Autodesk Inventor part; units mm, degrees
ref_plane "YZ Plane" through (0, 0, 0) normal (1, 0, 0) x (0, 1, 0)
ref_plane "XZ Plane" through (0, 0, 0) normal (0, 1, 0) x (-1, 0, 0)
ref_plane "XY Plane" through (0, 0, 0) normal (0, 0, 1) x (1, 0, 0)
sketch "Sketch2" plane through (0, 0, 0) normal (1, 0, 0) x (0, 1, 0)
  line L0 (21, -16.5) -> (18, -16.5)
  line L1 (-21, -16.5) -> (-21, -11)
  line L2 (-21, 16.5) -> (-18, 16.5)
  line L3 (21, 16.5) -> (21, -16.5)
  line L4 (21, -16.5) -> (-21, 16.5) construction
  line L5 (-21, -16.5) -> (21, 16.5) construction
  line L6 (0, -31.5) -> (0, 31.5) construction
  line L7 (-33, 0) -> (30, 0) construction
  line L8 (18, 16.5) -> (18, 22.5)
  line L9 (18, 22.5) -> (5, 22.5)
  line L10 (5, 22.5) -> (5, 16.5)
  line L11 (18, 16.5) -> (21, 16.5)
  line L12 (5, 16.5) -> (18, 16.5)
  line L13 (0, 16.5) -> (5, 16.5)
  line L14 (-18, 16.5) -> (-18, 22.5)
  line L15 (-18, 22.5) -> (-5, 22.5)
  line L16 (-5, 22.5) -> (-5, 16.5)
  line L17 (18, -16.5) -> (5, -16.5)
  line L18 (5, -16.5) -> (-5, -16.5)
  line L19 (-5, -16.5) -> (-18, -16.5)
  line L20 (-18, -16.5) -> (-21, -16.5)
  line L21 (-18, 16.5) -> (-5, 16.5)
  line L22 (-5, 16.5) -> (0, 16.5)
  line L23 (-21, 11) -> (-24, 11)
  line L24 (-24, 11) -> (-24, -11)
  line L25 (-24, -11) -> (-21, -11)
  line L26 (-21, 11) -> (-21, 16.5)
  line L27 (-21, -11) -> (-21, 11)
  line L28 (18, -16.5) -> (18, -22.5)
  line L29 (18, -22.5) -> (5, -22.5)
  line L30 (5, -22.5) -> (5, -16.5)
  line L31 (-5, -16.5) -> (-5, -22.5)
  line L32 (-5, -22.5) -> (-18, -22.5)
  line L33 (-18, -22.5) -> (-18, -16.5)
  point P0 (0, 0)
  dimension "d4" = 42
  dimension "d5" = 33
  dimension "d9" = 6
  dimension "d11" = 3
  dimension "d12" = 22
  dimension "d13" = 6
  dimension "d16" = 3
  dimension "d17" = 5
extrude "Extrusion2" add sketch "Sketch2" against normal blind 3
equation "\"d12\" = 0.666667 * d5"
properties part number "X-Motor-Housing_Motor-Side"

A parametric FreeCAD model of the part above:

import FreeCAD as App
import Part
import Sketcher
Q = App.Units.Quantity


def add_polygon(sketch, points):
    """Adds a closed chain of lines whose ends are joined by coincident constraints."""
    first, n = sketch.GeometryCount, len(points)
    for a, b in zip(points, points[1:] + points[:1]):
        sketch.addGeometry(Part.LineSegment(App.Vector(*a, 0), App.Vector(*b, 0)), False)
    for i in range(n):
        sketch.addConstraint(Sketcher.Constraint("Coincident", first + i, 2, first + (i + 1) % n, 1))

doc = App.newDocument("Part")
params = doc.addObject("Spreadsheet::Sheet", "Params")
for row, (alias, value) in enumerate([
    ("sketch1_width", "3 mm"),
    ("sketch1_height", "33 mm"),
    ("sketch1_height2", "6 mm"),
    ("sketch1_height3", "22 mm"),
    ("sketch1_width2", "13 mm"),
    ("pad1_length", "3 mm"),
], start=1):
    params.set(f"A{row}", alias)
    params.set(f"B{row}", "=" + value)
    params.setAlias(f"B{row}", alias)

body = doc.addObject("PartDesign::Body", "Body")

sketch1 = body.newObject("Sketcher::SketchObject", "Sketch")
sketch1.AttachmentSupport = (doc.getObject("YZ_Plane"), [""])
sketch1.MapMode = "FlatFace"
add_polygon(sketch1, [(18, -16.5), (21, -16.5), (21, 16.5), (18, 16.5), (18, 22.5), (5, 22.5), (5, 16.5), (-5, 16.5), (-5, 22.5), (-18, 22.5), (-18, 16.5), (-21, 16.5), (-21, 11), (-24, 11), (-24, -11), (-21, -11), (-21, -16.5), (-18, -16.5), (-18, -22.5), (-5, -22.5), (-5, -16.5), (5, -16.5), (5, -22.5), (18, -22.5)])
sketch1.addConstraint(Sketcher.Constraint("Horizontal", 0))
sketch1.addConstraint(Sketcher.Constraint("Vertical", 1))
sketch1.addConstraint(Sketcher.Constraint("Horizontal", 2))
sketch1.addConstraint(Sketcher.Constraint("Vertical", 3))
sketch1.addConstraint(Sketcher.Constraint("Horizontal", 4))
sketch1.addConstraint(Sketcher.Constraint("Vertical", 5))
sketch1.addConstraint(Sketcher.Constraint("Horizontal", 6))
sketch1.addConstraint(Sketcher.Constraint("Vertical", 7))
sketch1.addConstraint(Sketcher.Constraint("Horizontal", 8))
sketch1.addConstraint(Sketcher.Constraint("Vertical", 9))
sketch1.addConstraint(Sketcher.Constraint("Horizontal", 10))
sketch1.addConstraint(Sketcher.Constraint("Vertical", 11))
sketch1.addConstraint(Sketcher.Constraint("Horizontal", 12))
sketch1.addConstraint(Sketcher.Constraint("Vertical", 13))
sketch1.addConstraint(Sketcher.Constraint("Horizontal", 14))
sketch1.addConstraint(Sketcher.Constraint("Vertical", 15))
sketch1.addConstraint(Sketcher.Constraint("Horizontal", 16))
sketch1.addConstraint(Sketcher.Constraint("Vertical", 17))
sketch1.addConstraint(Sketcher.Constraint("Horizontal", 18))
sketch1.addConstraint(Sketcher.Constraint("Vertical", 19))
sketch1.addConstraint(Sketcher.Constraint("Horizontal", 20))
sketch1.addConstraint(Sketcher.Constraint("Vertical", 21))
sketch1.addConstraint(Sketcher.Constraint("Horizontal", 22))
sketch1.addConstraint(Sketcher.Constraint("Vertical", 23))
sketch1.addConstraint(Sketcher.Constraint("Symmetric", 0, 2, 10, 2, -1, 1))
sketch1.addConstraint(Sketcher.Constraint("Symmetric", 1, 2, 15, 2, -1, 1))
sketch1.addConstraint(Sketcher.Constraint("Symmetric", 3, 2, 17, 2, -1, 1))
sketch1.addConstraint(Sketcher.Constraint("Symmetric", 5, 2, 19, 2, -1, 1))
sketch1.addConstraint(Sketcher.Constraint("Symmetric", 7, 2, 21, 2, -1, 1))
sketch1.addConstraint(Sketcher.Constraint("Symmetric", 4, 2, 7, 2, -2))
sketch1.addConstraint(Sketcher.Constraint("Symmetric", 2, 2, 9, 2, -2))
sketch1.addConstraint(Sketcher.Constraint("Horizontal", 2, 2, 5, 2))
sketch1.addConstraint(Sketcher.Constraint("Vertical", 3, 2, 22, 2))
sketch1.addConstraint(Sketcher.Constraint("Equal", 10, 12))
sketch1.addConstraint(Sketcher.Constraint("Equal", 11, 15))
sketch1.addConstraint(Sketcher.Constraint("DistanceX", 0, 1, 0, 2, Q("3 mm")))
sketch1.addConstraint(Sketcher.Constraint("DistanceY", 1, 1, 1, 2, Q("33 mm")))
sketch1.addConstraint(Sketcher.Constraint("DistanceY", 3, 1, 3, 2, Q("6 mm")))
sketch1.addConstraint(Sketcher.Constraint("DistanceY", 13, 2, 13, 1, Q("22 mm")))
sketch1.addConstraint(Sketcher.Constraint("DistanceX", -1, 1, 4, 2, Q("5 mm")))
sketch1.addConstraint(Sketcher.Constraint("DistanceX", 4, 2, 4, 1, Q("13 mm")))
sketch1.setExpression("Constraints[59]", "Params.sketch1_width")
sketch1.setExpression("Constraints[60]", "Params.sketch1_height")
sketch1.setExpression("Constraints[61]", "Params.sketch1_height2")
sketch1.setExpression("Constraints[62]", "Params.sketch1_height3")
sketch1.setExpression("Constraints[64]", "Params.sketch1_width2")
pad1 = body.newObject("PartDesign::Pad", "Pad")
pad1.Profile = sketch1
pad1.setExpression("Length", "Params.pad1_length")
pad1.Reversed = True

doc.recompute()
